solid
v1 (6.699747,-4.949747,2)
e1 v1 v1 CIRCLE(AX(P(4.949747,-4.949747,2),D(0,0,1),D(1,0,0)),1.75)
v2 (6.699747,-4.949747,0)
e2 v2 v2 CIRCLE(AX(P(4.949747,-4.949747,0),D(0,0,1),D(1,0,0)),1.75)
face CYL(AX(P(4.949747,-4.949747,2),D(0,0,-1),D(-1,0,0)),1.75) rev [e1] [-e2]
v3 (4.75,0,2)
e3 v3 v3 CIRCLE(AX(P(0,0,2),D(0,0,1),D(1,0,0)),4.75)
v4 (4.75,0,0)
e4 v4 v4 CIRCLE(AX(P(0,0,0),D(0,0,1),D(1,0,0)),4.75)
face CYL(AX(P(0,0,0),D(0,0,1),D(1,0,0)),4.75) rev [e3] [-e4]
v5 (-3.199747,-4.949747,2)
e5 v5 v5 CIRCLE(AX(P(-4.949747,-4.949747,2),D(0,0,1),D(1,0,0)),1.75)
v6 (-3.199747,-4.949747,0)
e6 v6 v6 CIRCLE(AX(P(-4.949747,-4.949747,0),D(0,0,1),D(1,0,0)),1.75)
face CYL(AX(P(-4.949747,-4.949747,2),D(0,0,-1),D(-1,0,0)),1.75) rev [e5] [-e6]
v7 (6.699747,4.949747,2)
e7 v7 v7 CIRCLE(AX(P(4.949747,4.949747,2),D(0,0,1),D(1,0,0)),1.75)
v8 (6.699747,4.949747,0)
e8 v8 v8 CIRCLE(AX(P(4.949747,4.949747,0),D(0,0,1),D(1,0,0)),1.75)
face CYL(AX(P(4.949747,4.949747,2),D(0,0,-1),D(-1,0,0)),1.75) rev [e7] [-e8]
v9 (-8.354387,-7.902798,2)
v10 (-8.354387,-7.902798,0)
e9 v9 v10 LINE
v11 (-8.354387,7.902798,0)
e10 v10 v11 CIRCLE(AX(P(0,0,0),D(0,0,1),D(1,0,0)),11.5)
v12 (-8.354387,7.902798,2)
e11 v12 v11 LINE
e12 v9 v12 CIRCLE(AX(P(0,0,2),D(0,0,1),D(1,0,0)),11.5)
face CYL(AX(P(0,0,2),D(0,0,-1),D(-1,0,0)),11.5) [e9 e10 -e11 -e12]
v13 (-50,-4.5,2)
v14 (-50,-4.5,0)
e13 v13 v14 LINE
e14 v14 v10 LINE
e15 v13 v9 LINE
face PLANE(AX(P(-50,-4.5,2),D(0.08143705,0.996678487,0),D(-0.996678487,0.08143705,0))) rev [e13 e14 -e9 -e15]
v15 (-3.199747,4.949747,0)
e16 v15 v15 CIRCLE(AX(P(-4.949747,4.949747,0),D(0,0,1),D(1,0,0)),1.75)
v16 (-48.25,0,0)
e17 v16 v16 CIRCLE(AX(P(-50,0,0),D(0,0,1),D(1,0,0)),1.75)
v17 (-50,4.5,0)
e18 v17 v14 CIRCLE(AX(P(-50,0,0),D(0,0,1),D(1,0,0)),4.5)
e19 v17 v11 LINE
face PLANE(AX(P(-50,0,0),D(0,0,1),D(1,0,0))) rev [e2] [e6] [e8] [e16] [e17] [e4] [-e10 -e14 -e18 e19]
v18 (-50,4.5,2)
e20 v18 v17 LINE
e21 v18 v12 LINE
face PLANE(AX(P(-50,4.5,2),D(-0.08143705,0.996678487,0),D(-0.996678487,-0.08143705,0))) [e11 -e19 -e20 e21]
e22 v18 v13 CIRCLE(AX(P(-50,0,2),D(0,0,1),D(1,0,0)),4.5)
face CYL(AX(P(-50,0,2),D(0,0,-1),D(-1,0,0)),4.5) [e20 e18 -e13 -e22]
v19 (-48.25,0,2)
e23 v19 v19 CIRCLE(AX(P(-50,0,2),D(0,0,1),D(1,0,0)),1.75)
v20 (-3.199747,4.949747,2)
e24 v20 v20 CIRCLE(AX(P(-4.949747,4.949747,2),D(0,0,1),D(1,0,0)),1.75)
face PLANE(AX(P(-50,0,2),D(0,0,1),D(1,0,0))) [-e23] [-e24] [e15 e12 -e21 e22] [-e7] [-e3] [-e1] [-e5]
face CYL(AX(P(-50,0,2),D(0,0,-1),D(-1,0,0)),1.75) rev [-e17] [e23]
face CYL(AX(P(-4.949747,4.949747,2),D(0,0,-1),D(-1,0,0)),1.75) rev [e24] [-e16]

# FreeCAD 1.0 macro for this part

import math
import FreeCAD as App
import Part
import Sketcher
from FreeCAD import Vector

doc = App.newDocument("Part")
body = doc.addObject("PartDesign::Body", "Body")

# Sketch on XY plane
sketch1 = body.newObject("Sketcher::SketchObject", "Sketch")
sketch1.AttachmentSupport = (doc.getObject("XY_Plane"), [""])
sketch1.MapMode = "FlatFace"
sketch1.addGeometry(Part.LineSegment(Vector(-8.4, 7.9, 0), Vector(-50, 4.5, 0)), False)
sketch1.addGeometry(Part.ArcOfCircle(Part.Circle(Vector(-50, 0, 0), Vector(0, 0, 1), 4.5), math.radians(90), math.radians(270)), False)
sketch1.addGeometry(Part.LineSegment(Vector(-50, -4.5, 0), Vector(-8.4, -7.9, 0)), False)
sketch1.addGeometry(Part.ArcOfCircle(Part.Circle(Vector(0, 0, 0), Vector(0, 0, 1), 11.5), math.radians(-137), math.radians(137)), False)
sketch1.addGeometry(Part.Circle(Vector(4.9, -4.9, 0), Vector(0, 0, 1), 1.8), False)
sketch1.addGeometry(Part.Circle(Vector(-4.9, -4.9, 0), Vector(0, 0, 1), 1.8), False)
sketch1.addGeometry(Part.Circle(Vector(4.9, 4.9, 0), Vector(0, 0, 1), 1.8), False)
sketch1.addGeometry(Part.Circle(Vector(-4.9, 4.9, 0), Vector(0, 0, 1), 1.8), False)
sketch1.addGeometry(Part.Circle(Vector(-50, 0, 0), Vector(0, 0, 1), 1.8), False)
sketch1.addConstraint(Sketcher.Constraint("Coincident", 0, 2, 1, 1))
sketch1.addConstraint(Sketcher.Constraint("Coincident", 1, 2, 2, 1))
sketch1.addConstraint(Sketcher.Constraint("Coincident", 2, 2, 3, 1))
sketch1.addConstraint(Sketcher.Constraint("Coincident", 3, 2, 0, 1))
sketch1.addConstraint(Sketcher.Constraint("Coincident", 3, 3, -1, 1))
sketch1.addConstraint(Sketcher.Constraint("Coincident", 8, 3, 1, 3))
sketch1.addConstraint(Sketcher.Constraint("Equal", 4, 5))
sketch1.addConstraint(Sketcher.Constraint("Equal", 5, 6))
sketch1.addConstraint(Sketcher.Constraint("Equal", 6, 7))
sketch1.addConstraint(Sketcher.Constraint("Equal", 7, 8))
sketch1.addConstraint(Sketcher.Constraint("Symmetric", 5, 3, 6, 3, -1, 1))
sketch1.addConstraint(Sketcher.Constraint("Symmetric", 4, 3, 7, 3, -1, 1))
sketch1.addConstraint(Sketcher.Constraint("Symmetric", 4, 3, 5, 3, -2))
sketch1.addConstraint(Sketcher.Constraint("Symmetric", 0, 2, 1, 2, -1))
sketch1.addConstraint(Sketcher.Constraint("Vertical", 8, 3, 0, 2))
sketch1.addConstraint(Sketcher.Constraint("Vertical", 2, 2, 3, 2))
sketch1.addConstraint(Sketcher.Constraint("Diameter", 4, 3.5))
sketch1.addConstraint(Sketcher.Constraint("Radius", 1, 4.5))
sketch1.addConstraint(Sketcher.Constraint("Radius", 3, 11.5))
sketch1.addConstraint(Sketcher.Constraint("DistanceX", 1, 3, -1, 1, 50.0))
sketch1.addConstraint(Sketcher.Constraint("Distance", 0, 41.784401))
sketch1.addConstraint(Sketcher.Constraint("DistanceX", 2, 2, 5, 3, 3.404639))
sketch1.addConstraint(Sketcher.Constraint("DistanceY", 2, 2, 5, 3, 2.953051))
pad1 = body.newObject("PartDesign::Pad", "Pad")
pad1.Profile = sketch1
pad1.Length = 2

# Sketch on XY plane
sketch2 = body.newObject("Sketcher::SketchObject", "Sketch001")
sketch2.AttachmentSupport = (doc.getObject("XY_Plane"), [""])
sketch2.MapMode = "FlatFace"
sketch2.AttachmentOffset = App.Placement(Vector(0, 0, 2), App.Rotation())
sketch2.addGeometry(Part.Circle(Vector(0, 0, 0), Vector(0, 0, 1), 4.8), False)
sketch2.addConstraint(Sketcher.Constraint("Coincident", 0, 3, -1, 1))
sketch2.addConstraint(Sketcher.Constraint("Diameter", 0, 9.5))
pocket1 = body.newObject("PartDesign::Pocket", "Pocket")
pocket1.Profile = sketch2
pocket1.Length = 2

doc.recompute()
